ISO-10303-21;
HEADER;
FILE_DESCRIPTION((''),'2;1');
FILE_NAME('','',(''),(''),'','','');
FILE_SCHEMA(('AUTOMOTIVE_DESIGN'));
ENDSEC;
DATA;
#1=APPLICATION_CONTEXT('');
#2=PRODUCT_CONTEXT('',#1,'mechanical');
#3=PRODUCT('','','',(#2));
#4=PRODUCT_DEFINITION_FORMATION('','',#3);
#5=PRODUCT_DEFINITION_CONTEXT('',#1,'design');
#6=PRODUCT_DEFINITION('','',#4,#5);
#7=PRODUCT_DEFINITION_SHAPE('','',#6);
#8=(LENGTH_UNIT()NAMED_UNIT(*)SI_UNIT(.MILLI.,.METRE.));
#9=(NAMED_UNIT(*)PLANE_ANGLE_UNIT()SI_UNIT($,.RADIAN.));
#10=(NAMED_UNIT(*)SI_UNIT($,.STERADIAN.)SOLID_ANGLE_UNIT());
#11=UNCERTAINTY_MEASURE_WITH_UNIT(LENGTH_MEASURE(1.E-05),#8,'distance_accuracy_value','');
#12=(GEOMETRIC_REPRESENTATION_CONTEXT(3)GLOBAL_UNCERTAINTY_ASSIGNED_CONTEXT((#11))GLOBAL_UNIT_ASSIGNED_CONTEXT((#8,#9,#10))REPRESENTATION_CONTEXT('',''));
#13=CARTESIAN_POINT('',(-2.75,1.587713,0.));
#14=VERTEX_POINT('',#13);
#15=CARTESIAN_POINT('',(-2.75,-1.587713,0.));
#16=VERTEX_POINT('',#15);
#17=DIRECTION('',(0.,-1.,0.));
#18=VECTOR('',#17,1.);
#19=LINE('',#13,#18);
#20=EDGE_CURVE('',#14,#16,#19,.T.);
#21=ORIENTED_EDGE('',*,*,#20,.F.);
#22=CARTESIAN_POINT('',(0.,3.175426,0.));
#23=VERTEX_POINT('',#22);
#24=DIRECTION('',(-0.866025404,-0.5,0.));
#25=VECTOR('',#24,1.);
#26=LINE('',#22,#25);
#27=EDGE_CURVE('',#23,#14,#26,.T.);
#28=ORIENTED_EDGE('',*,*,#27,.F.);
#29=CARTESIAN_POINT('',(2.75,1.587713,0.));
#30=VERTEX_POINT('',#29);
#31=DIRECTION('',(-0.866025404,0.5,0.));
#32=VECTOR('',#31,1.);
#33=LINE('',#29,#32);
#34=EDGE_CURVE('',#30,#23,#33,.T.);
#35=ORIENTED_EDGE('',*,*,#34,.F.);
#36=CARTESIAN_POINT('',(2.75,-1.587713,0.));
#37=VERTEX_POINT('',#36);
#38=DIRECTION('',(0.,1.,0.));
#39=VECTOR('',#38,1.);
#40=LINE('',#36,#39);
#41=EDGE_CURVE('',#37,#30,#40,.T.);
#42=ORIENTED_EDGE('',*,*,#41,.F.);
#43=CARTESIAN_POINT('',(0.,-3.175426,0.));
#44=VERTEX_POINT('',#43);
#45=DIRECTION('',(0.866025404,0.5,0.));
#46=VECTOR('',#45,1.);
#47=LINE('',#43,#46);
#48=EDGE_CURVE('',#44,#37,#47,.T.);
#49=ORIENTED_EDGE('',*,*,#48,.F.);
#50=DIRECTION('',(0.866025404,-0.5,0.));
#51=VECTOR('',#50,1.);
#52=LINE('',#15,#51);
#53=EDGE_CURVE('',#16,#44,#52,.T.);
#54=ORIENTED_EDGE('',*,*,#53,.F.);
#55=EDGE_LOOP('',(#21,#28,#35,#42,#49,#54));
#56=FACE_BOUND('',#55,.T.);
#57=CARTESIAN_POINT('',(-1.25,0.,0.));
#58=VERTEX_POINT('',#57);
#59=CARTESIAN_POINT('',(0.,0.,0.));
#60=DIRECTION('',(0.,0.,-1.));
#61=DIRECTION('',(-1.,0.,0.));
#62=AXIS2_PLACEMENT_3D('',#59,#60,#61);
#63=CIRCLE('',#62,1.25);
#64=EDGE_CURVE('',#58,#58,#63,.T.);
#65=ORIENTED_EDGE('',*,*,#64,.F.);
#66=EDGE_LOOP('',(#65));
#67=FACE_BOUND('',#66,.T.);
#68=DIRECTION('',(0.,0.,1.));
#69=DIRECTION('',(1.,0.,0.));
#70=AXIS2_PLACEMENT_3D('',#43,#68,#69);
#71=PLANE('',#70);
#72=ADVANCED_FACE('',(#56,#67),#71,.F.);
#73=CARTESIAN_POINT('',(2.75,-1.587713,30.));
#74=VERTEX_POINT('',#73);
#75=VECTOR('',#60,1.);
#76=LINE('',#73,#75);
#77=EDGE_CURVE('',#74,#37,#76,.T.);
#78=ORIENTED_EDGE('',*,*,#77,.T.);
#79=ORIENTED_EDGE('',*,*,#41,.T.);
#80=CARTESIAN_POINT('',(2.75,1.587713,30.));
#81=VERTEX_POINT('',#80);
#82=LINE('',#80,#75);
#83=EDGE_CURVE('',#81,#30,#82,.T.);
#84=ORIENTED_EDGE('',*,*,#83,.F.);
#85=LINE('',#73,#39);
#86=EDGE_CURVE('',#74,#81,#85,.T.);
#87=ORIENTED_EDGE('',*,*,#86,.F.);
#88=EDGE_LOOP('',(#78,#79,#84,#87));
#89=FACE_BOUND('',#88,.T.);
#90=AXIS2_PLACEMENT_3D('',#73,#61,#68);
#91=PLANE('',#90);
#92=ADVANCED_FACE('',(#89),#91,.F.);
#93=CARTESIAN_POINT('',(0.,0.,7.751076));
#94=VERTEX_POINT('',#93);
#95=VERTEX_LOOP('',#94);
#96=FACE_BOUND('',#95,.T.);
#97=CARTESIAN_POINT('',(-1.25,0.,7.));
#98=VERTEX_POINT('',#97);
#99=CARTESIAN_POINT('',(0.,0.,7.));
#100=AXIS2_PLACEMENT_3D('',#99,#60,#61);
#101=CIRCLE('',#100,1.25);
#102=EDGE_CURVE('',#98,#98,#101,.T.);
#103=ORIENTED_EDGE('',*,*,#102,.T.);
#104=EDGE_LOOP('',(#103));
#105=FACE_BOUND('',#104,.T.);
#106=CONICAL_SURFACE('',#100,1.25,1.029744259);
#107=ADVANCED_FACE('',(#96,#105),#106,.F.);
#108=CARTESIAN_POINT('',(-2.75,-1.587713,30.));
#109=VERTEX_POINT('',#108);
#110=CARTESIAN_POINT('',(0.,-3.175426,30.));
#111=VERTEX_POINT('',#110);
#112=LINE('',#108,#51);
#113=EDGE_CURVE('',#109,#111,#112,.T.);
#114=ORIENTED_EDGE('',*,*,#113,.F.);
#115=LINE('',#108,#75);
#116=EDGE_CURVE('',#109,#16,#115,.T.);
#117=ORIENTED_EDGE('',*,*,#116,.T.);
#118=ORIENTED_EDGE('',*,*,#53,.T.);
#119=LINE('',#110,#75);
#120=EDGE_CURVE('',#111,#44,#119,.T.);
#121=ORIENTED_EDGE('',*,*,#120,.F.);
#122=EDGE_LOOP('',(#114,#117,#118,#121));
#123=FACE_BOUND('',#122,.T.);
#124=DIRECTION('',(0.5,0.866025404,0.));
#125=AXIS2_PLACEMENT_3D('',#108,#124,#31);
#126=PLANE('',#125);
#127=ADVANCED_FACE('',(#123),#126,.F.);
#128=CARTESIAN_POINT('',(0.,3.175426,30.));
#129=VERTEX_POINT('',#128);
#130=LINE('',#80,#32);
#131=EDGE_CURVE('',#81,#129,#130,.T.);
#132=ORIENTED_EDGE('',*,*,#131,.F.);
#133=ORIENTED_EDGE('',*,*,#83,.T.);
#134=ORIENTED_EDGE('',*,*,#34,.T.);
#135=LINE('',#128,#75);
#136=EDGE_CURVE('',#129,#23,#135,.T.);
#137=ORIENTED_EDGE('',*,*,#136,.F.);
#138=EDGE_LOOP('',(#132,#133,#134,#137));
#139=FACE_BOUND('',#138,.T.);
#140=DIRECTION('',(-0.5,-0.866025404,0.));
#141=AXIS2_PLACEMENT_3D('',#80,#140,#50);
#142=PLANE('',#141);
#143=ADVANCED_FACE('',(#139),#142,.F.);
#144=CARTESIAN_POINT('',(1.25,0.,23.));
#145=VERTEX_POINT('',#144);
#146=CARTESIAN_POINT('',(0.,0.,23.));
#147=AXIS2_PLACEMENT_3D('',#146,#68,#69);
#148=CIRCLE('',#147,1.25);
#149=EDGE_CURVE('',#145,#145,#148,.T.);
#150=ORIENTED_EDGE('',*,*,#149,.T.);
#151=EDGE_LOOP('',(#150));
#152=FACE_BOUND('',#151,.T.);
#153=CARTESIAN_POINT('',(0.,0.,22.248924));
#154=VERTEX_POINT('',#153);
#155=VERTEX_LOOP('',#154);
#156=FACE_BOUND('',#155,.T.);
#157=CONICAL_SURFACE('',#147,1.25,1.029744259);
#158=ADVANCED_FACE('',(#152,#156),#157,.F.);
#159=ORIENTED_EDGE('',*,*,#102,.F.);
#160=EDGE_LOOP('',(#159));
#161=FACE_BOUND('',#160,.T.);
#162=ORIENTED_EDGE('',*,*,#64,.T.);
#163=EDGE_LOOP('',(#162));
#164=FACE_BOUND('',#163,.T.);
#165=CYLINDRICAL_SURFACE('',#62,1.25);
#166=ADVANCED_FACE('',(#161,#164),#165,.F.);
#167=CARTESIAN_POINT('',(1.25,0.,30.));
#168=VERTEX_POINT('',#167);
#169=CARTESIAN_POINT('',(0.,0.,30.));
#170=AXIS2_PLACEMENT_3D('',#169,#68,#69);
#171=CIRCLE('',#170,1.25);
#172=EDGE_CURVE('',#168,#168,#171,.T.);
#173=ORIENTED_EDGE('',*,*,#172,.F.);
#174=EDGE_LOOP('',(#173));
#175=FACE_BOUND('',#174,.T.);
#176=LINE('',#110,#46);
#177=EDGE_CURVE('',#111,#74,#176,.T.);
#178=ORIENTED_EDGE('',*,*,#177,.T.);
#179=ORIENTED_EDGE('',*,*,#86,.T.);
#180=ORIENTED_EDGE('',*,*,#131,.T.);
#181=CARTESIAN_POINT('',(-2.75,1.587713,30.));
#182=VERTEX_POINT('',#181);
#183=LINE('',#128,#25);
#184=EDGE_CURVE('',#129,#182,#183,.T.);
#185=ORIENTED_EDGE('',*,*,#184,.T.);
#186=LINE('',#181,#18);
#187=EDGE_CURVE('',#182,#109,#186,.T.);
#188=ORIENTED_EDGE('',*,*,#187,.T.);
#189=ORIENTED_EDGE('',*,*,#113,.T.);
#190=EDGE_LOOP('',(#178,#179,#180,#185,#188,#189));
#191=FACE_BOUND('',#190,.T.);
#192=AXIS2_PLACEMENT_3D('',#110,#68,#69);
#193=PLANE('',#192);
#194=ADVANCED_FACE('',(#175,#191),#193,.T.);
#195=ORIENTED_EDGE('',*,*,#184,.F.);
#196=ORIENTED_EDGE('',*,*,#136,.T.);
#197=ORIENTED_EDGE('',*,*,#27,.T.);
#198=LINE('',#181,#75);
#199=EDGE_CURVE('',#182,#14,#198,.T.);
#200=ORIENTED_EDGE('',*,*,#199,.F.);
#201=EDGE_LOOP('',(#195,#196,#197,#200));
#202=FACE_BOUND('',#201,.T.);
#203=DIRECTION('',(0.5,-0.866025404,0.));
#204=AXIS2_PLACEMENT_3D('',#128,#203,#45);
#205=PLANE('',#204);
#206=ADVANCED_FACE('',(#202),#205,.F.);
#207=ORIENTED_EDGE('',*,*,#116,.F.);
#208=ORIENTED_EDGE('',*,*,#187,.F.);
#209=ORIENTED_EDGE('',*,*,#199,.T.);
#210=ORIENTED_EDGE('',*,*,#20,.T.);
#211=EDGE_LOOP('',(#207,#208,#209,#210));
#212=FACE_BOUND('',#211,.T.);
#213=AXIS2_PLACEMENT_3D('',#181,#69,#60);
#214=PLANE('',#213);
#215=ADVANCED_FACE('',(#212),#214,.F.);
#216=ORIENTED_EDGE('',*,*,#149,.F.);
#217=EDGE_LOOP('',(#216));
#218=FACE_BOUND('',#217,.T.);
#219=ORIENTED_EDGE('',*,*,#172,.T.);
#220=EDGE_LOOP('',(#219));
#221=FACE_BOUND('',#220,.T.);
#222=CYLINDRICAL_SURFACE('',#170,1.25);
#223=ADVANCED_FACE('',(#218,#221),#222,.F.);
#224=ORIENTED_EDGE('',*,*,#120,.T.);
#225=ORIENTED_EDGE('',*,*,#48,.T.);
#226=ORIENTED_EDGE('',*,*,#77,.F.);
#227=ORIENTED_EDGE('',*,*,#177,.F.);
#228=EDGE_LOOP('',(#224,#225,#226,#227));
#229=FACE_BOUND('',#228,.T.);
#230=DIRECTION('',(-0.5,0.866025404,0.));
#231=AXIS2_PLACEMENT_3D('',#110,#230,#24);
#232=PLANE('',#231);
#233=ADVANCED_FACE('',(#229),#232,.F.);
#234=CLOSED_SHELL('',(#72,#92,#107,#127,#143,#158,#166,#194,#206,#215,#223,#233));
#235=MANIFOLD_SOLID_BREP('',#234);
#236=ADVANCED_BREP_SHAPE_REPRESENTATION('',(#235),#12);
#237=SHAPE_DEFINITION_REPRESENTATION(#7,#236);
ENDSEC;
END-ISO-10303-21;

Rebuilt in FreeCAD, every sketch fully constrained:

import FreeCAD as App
import Part
import Sketcher
from FreeCAD import Vector
Q = App.Units.Quantity


def add_polygon(sketch, points):
    """Adds a closed chain of lines whose ends are joined by coincident constraints."""
    first, n = sketch.GeometryCount, len(points)
    for a, b in zip(points, points[1:] + points[:1]):
        sketch.addGeometry(Part.LineSegment(App.Vector(*a, 0), App.Vector(*b, 0)), False)
    for i in range(n):
        sketch.addConstraint(Sketcher.Constraint("Coincident", first + i, 2, first + (i + 1) % n, 1))

doc = App.newDocument("Part")
params = doc.addObject("Spreadsheet::Sheet", "Params")
for row, (alias, value) in enumerate([
    ("pad1_length", "30 mm"),
    ("sketch2_diameter", "2.5 mm"),
    ("hole_diameter", "2.5 mm"),
    ("hole_depth", "7 mm"),
    ("sketch3_diameter", "2.5 mm"),
    ("hole2_diameter", "2.5 mm"),
    ("hole2_depth", "7 mm"),
], start=1):
    params.set(f"A{row}", alias)
    params.set(f"B{row}", "=" + value)
    params.setAlias(f"B{row}", alias)

body = doc.addObject("PartDesign::Body", "Body")

# Sketch on XY plane
sketch1 = body.newObject("Sketcher::SketchObject", "Sketch")
sketch1.AttachmentSupport = (doc.getObject("XY_Plane"), [""])
sketch1.MapMode = "FlatFace"
add_polygon(sketch1, [(0, -3.2), (2.8, -1.6), (2.8, 1.6), (0, 3.2), (-2.8, 1.6), (-2.8, -1.6)])  # lines 0-5
sketch1.addConstraint([
    Sketcher.Constraint("Vertical", 1),
    Sketcher.Constraint("Vertical", 4),
    Sketcher.Constraint("Symmetric", 0, 2, 3, 2, -1, 1),
    Sketcher.Constraint("Symmetric", 2, 2, 5, 2, -1, 1),
    Sketcher.Constraint("PointOnObject", 2, 2, -2),
    Sketcher.Constraint("Parallel", 2, 5),
    Sketcher.Constraint("Horizontal", 1, 2, 3, 2),
    Sketcher.Constraint("Angle", 0, Q("30 deg")),
    Sketcher.Constraint("DistanceX", 3, 2, 1, 2, 5.5),
    Sketcher.Constraint("DistanceY", 1, 1, 1, 2, 3.175426),
])
pad1 = body.newObject("PartDesign::Pad", "Pad")
pad1.Profile = sketch1
pad1.setExpression("Length", "Params.pad1_length")

# Sketch on XY plane
sketch2 = body.newObject("Sketcher::SketchObject", "Sketch001")
sketch2.AttachmentSupport = (doc.getObject("XY_Plane"), [""])
sketch2.MapMode = "FlatFace"
sketch2.AttachmentOffset = App.Placement(Vector(0, 0, 30), App.Rotation())
sketch2.addGeometry(Part.Circle(Vector(0, 0, 0), Vector(0, 0, 1), 1.2), False)
sketch2.addConstraint([
    Sketcher.Constraint("Coincident", 0, 3, -1, 1),
    Sketcher.Constraint("Diameter", 0, 2.5),
])
sketch2.setExpression("Constraints[1]", "Params.sketch2_diameter")
doc.recompute()
hole = body.newObject("PartDesign::Hole", "Hole")
hole.Profile = sketch2
hole.ThreadType = "None"
hole.setExpression("Diameter", "Params.hole_diameter")
hole.DepthType = "Dimension"
hole.setExpression("Depth", "Params.hole_depth")
hole.DrillPoint = "Angled"
hole.DrillPointAngle = 118

# Sketch on XY plane
sketch3 = body.newObject("Sketcher::SketchObject", "Sketch002")
sketch3.AttachmentSupport = (doc.getObject("XY_Plane"), [""])
sketch3.MapMode = "FlatFace"
sketch3.addGeometry(Part.Circle(Vector(0, 0, 0), Vector(0, 0, 1), 1.2), False)
sketch3.addConstraint([
    Sketcher.Constraint("Coincident", 0, 3, -1, 1),
    Sketcher.Constraint("Diameter", 0, 2.5),
])
sketch3.setExpression("Constraints[1]", "Params.sketch3_diameter")
doc.recompute()
hole2 = body.newObject("PartDesign::Hole", "Hole001")
hole2.Profile = sketch3
hole2.ThreadType = "None"
hole2.setExpression("Diameter", "Params.hole2_diameter")
hole2.DepthType = "Dimension"
hole2.setExpression("Depth", "Params.hole2_depth")
hole2.DrillPoint = "Angled"
hole2.DrillPointAngle = 118
hole2.Reversed = True

doc.recompute()
